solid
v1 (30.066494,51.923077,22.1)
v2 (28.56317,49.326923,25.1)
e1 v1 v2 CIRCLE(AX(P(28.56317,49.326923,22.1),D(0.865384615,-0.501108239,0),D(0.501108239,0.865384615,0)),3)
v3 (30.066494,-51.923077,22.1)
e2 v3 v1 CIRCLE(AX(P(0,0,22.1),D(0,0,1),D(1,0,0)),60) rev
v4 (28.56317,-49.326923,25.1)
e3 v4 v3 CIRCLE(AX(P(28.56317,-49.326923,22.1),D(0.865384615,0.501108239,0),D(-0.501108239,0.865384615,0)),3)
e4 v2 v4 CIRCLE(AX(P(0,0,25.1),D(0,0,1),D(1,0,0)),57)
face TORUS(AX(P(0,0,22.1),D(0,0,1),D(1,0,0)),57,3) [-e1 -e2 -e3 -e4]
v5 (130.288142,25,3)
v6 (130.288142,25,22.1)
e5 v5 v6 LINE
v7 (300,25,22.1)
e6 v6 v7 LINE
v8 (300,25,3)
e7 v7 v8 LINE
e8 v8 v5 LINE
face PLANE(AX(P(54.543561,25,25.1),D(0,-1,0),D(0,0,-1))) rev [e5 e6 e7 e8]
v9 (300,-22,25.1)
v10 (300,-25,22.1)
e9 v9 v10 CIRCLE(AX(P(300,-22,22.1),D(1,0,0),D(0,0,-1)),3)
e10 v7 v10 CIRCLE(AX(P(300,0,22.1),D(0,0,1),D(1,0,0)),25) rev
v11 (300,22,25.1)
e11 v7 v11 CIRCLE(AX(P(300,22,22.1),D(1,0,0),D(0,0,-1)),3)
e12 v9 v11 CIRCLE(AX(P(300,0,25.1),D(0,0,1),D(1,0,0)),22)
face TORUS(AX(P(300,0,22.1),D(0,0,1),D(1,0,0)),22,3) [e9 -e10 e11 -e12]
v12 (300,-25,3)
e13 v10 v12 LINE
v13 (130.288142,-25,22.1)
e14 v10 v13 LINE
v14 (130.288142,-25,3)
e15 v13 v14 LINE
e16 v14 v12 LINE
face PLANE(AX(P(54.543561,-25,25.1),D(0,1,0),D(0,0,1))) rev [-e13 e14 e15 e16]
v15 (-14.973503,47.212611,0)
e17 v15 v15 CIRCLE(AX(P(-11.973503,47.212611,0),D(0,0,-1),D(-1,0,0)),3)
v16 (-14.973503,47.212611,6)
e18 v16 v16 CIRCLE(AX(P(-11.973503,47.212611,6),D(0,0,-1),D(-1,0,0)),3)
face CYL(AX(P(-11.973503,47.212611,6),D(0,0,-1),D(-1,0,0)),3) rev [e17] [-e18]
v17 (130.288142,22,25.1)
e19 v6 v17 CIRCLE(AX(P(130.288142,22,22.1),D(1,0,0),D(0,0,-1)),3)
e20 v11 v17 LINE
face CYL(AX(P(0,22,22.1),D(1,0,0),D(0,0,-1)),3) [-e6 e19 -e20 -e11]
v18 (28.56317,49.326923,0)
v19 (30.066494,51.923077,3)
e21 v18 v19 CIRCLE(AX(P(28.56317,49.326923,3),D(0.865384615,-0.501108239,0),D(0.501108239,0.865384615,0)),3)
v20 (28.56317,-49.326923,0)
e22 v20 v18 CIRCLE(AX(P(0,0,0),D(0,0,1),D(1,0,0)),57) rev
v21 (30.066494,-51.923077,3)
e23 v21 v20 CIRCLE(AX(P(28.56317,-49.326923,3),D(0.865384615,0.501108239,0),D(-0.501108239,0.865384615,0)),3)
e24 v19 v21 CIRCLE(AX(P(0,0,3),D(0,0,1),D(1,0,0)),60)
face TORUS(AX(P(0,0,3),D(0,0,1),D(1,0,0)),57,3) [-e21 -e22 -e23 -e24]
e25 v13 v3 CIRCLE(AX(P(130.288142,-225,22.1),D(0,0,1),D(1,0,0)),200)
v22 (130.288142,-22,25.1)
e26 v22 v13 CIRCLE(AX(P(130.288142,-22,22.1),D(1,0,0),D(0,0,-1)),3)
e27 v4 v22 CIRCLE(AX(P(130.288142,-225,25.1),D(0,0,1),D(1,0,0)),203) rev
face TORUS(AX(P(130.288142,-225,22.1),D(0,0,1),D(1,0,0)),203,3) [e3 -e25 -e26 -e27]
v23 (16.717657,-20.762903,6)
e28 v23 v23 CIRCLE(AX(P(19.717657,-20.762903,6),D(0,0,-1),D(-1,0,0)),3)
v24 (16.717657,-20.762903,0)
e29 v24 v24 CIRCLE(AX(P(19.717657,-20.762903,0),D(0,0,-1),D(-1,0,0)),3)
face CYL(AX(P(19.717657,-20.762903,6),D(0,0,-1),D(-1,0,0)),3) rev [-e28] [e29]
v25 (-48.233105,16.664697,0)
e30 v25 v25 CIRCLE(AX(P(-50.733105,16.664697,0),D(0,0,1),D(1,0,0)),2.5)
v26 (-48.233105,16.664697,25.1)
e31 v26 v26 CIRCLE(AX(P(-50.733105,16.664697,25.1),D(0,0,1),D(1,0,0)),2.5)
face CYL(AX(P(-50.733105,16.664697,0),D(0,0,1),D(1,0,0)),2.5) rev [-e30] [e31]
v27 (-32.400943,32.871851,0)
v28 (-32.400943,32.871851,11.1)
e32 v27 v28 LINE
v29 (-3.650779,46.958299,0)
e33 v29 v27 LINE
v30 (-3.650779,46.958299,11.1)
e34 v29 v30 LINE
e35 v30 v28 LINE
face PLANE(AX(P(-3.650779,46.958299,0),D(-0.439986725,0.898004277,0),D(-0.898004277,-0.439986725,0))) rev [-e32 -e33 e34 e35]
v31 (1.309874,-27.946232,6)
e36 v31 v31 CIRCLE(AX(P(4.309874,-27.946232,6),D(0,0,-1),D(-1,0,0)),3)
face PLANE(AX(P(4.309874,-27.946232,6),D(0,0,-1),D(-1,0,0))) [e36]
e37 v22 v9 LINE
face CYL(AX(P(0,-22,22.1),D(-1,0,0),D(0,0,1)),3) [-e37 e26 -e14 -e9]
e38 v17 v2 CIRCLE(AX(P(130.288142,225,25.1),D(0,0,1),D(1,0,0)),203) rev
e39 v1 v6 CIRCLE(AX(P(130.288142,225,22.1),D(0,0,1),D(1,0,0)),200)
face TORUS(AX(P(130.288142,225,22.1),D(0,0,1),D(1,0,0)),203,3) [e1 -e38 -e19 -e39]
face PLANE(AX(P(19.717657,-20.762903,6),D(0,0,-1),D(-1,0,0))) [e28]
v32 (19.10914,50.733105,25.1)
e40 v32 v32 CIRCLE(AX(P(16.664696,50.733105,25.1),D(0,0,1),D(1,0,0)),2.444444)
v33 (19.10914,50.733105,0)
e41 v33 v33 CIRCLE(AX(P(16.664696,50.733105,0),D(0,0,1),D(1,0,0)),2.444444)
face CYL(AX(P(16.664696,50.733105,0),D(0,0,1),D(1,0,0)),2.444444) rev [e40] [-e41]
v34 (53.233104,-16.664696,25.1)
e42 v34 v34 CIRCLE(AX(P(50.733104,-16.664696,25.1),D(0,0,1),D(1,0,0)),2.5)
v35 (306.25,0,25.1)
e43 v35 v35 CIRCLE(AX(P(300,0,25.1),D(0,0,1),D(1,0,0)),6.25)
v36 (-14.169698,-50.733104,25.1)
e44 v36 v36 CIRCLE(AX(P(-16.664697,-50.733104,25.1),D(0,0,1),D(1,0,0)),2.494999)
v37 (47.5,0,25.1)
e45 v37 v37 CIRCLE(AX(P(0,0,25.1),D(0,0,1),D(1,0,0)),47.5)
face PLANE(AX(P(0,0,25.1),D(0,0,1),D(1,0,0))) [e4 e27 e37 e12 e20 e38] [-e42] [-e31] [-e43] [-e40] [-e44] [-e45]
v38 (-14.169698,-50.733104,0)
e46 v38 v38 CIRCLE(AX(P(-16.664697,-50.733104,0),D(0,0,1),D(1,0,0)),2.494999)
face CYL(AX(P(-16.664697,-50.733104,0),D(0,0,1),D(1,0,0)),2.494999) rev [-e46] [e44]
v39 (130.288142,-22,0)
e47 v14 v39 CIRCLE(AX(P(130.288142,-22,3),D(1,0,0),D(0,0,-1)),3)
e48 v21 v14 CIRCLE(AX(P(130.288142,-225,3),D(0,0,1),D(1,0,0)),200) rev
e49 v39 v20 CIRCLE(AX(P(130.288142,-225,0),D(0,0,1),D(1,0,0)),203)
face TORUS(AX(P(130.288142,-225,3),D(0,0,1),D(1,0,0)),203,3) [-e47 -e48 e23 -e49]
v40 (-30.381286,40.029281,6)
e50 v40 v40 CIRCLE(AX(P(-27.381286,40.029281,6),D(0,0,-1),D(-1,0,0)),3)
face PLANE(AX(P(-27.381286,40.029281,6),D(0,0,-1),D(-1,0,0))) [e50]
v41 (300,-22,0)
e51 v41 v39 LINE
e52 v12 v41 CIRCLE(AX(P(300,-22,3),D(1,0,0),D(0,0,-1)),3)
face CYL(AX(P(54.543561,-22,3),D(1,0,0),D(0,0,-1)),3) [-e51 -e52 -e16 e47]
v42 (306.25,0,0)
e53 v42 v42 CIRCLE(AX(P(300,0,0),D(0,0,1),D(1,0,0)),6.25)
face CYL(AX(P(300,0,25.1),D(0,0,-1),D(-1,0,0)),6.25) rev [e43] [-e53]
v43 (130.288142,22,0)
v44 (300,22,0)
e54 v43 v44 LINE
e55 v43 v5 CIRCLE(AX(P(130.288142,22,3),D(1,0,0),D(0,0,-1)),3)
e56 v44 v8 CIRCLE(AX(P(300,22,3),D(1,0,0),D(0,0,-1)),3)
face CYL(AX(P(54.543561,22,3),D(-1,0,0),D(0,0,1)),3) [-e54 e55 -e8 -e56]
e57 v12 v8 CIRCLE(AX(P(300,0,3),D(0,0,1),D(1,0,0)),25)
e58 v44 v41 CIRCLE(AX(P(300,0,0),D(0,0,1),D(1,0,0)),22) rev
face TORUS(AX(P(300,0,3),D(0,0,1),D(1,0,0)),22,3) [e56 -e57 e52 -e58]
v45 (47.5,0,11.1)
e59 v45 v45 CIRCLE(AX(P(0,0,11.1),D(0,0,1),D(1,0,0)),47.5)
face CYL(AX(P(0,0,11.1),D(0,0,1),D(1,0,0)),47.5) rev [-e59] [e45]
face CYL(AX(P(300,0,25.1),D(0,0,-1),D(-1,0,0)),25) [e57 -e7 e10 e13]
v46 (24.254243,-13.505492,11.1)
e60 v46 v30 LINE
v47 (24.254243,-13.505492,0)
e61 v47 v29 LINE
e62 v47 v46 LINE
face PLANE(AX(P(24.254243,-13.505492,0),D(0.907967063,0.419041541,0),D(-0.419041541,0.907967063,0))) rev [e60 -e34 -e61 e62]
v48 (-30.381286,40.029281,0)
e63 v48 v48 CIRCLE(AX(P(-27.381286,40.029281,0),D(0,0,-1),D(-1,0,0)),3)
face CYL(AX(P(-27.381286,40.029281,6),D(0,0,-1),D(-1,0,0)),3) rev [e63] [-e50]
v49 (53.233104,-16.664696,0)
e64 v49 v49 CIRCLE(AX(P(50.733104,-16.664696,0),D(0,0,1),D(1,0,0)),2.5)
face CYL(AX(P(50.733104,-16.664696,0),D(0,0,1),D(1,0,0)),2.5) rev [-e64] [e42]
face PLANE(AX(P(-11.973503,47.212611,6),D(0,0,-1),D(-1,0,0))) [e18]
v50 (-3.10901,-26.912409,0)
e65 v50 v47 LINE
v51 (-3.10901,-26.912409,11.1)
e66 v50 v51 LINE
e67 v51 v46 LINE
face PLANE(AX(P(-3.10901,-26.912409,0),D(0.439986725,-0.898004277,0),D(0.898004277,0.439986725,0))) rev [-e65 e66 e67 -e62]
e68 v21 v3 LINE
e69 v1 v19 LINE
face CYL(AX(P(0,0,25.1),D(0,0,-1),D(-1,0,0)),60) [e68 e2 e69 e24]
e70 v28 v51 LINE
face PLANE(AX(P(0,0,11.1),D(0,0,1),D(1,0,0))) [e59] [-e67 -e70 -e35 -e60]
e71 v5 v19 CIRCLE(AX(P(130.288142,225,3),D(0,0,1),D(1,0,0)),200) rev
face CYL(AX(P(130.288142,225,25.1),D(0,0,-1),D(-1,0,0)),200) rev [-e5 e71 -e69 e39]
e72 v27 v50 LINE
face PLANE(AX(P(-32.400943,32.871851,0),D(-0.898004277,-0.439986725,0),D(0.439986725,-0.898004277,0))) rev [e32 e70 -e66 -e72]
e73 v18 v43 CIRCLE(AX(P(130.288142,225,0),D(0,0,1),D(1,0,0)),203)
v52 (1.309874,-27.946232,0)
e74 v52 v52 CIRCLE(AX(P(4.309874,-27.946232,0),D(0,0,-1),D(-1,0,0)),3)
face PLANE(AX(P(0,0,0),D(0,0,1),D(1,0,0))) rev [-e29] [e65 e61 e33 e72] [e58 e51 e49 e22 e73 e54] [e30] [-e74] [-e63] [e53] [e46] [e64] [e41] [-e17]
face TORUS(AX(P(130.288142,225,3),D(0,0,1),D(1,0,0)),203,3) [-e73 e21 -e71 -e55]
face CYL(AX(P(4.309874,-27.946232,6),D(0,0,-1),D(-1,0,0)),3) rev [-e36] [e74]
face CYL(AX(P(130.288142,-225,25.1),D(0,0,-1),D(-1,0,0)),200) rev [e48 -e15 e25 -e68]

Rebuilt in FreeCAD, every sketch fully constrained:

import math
import FreeCAD as App
import Part
import Sketcher
from FreeCAD import Vector


def edges_at(feature, points):
    """Names of the edges that pass closest to the given points."""
    edges = feature.Shape.Edges
    near = lambda p: min(range(len(edges)), key=lambda i: edges[i].distToShape(Part.Vertex(*p))[0])
    return sorted({f"Edge{near(p) + 1}" for p in points})

doc = App.newDocument("Part")
body = doc.addObject("PartDesign::Body", "Body")

# Sketch on XY plane
sketch1 = body.newObject("Sketcher::SketchObject", "Sketch")
sketch1.AttachmentSupport = (doc.getObject("XY_Plane"), [""])
sketch1.MapMode = "FlatFace"
sketch1.addGeometry([
    Part.LineSegment(Vector(300, 25, 0), Vector(55, 25, 0)),  # 0
    Part.ArcOfCircle(Part.Circle(Vector(0, 0, 0), Vector(0, 0, 1), 60), math.radians(25), math.radians(335)),  # 1
    Part.LineSegment(Vector(55, -25, 0), Vector(300, -25, 0)),  # 2
    Part.ArcOfCircle(Part.Circle(Vector(300, 0, 0), Vector(0, 0, 1), 25), math.radians(-90), math.radians(90)),  # 3
    Part.Circle(Vector(300, 0, 0), Vector(0, 0, 1), 6),  # 4
], False)
sketch1.addConstraint([
    Sketcher.Constraint("Coincident", 0, 2, 1, 1),
    Sketcher.Constraint("Coincident", 1, 2, 2, 1),
    Sketcher.Constraint("Tangent", 2, 2, 3, 1),
    Sketcher.Constraint("Tangent", 3, 2, 0, 1),
    Sketcher.Constraint("Horizontal", 0),
    Sketcher.Constraint("Horizontal", 2),
    Sketcher.Constraint("Coincident", 1, 3, -1, 1),
    Sketcher.Constraint("Coincident", 4, 3, 3, 3),
    Sketcher.Constraint("PointOnObject", 3, 3, -1),
    Sketcher.Constraint("Radius", 1, 60.0),
    Sketcher.Constraint("Radius", 3, 25.0),
    Sketcher.Constraint("Diameter", 4, 12.5),
    Sketcher.Constraint("DistanceX", -1, 1, 3, 3, 300.0),
])
pad1 = body.newObject("PartDesign::Pad", "Pad")
pad1.Profile = sketch1
pad1.Length = 25.1

# Sketch on XY plane
sketch2 = body.newObject("Sketcher::SketchObject", "Sketch001")
sketch2.AttachmentSupport = (doc.getObject("XY_Plane"), [""])
sketch2.MapMode = "FlatFace"
sketch2.AttachmentOffset = App.Placement(Vector(0, 0, 25.1), App.Rotation())
sketch2.addGeometry(Part.Circle(Vector(0, 0, 0), Vector(0, 0, 1), 48), False)
sketch2.addConstraint([
    Sketcher.Constraint("Coincident", 0, 3, -1, 1),
    Sketcher.Constraint("Diameter", 0, 95.0),
])
pocket1 = body.newObject("PartDesign::Pocket", "Pocket")
pocket1.Profile = sketch2
pocket1.Length = 14

# Sketch on XY plane
sketch3 = body.newObject("Sketcher::SketchObject", "Sketch002")
sketch3.AttachmentSupport = (doc.getObject("XY_Plane"), [""])
sketch3.MapMode = "FlatFace"
sketch3.AttachmentOffset = App.Placement(Vector(0, 0, 25.1), App.Rotation())
sketch3.addGeometry([
    Part.Circle(Vector(-16.7, -50.7, 0), Vector(0, 0, 1), 2.5),
    Part.Circle(Vector(-50.7, 16.7, 0), Vector(0, 0, 1), 2.5),
    Part.Circle(Vector(16.7, 50.7, 0), Vector(0, 0, 1), 2.4),
    Part.Circle(Vector(50.7, -16.7, 0), Vector(0, 0, 1), 2.5),
], False)
sketch3.addConstraint([
    Sketcher.Constraint("Equal", 1, 3),
    Sketcher.Constraint("Symmetric", 0, 3, 2, 3, -1, 1),
    Sketcher.Constraint("Symmetric", 1, 3, 3, 3, -1, 1),
    Sketcher.Constraint("Diameter", 1, 5.0),
    Sketcher.Constraint("Diameter", 0, 4.989997),
    Sketcher.Constraint("Diameter", 2, 4.888888),
    Sketcher.Constraint("DistanceY", 0, 3, 1, 3, 67.397801),
    Sketcher.Constraint("DistanceX", 1, 3, 2, 3, 67.397801),
    Sketcher.Constraint("DistanceY", 0, 3, 2, 3, 101.466209),
    Sketcher.Constraint("DistanceX", 1, 3, 3, 3, 101.466209),
])
pocket2 = body.newObject("PartDesign::Pocket", "Pocket001")
pocket2.Profile = sketch3
pocket2.Type = "ThroughAll"
pocket2.Midplane = True

# Sketch on XY plane
sketch4 = body.newObject("Sketcher::SketchObject", "Sketch003")
sketch4.AttachmentSupport = (doc.getObject("XY_Plane"), [""])
sketch4.MapMode = "FlatFace"
sketch4.addGeometry([
    Part.Circle(Vector(-12, 47.2, 0), Vector(0, 0, 1), 3),
    Part.Circle(Vector(-27.4, 40, 0), Vector(0, 0, 1), 3),
    Part.Circle(Vector(19.7, -20.8, 0), Vector(0, 0, 1), 3),
    Part.Circle(Vector(4.3, -27.9, 0), Vector(0, 0, 1), 3),
], False)
sketch4.addConstraint([
    Sketcher.Constraint("Equal", 0, 1),
    Sketcher.Constraint("Equal", 1, 2),
    Sketcher.Constraint("Equal", 2, 3),
    Sketcher.Constraint("Diameter", 0, 6.0),
    Sketcher.Constraint("DistanceY", -1, 1, 0, 3, 47.212611),
    Sketcher.Constraint("DistanceY", -1, 1, 1, 3, 40.029281),
    Sketcher.Constraint("DistanceX", 0, 3, 2, 3, 31.69116),
    Sketcher.Constraint("DistanceY", 3, 3, 2, 3, 7.18333),
    Sketcher.Constraint("DistanceX", 1, 3, 3, 3, 31.69116),
    Sketcher.Constraint("DistanceX", 0, 3, -1, 1, 11.973503),
    Sketcher.Constraint("DistanceX", 1, 3, -1, 1, 27.381286),
    Sketcher.Constraint("DistanceY", 2, 3, -1, 1, 20.762903),
])
pocket3 = body.newObject("PartDesign::Pocket", "Pocket002")
pocket3.Profile = sketch4
pocket3.Length = 6
pocket3.Reversed = True

# Sketch on XY plane
sketch5 = body.newObject("Sketcher::SketchObject", "Sketch004")
sketch5.AttachmentSupport = (doc.getObject("XY_Plane"), [""])
sketch5.MapMode = "FlatFace"
sketch5.AttachmentOffset = App.Placement(Vector(0, 0, 11.1), App.Rotation())
sketch5.addGeometry([
    Part.LineSegment(Vector(-32, 33, 0), Vector(-3, -27, 0)),
    Part.LineSegment(Vector(-3, -27, 0), Vector(24, -14, 0)),
    Part.LineSegment(Vector(24, -14, 0), Vector(-4, 47, 0)),
    Part.LineSegment(Vector(-4, 47, 0), Vector(-32, 33, 0)),
], False)
sketch5.addConstraint([
    Sketcher.Constraint("Coincident", 0, 2, 1, 1),
    Sketcher.Constraint("Coincident", 1, 2, 2, 1),
    Sketcher.Constraint("Coincident", 2, 2, 3, 1),
    Sketcher.Constraint("Coincident", 3, 2, 0, 1),
    Sketcher.Constraint("Perpendicular", 0, 1),
    Sketcher.Constraint("Parallel", 1, 3),
    Sketcher.Constraint("DistanceY", -1, 1, 2, 2, 46.958299),
    Sketcher.Constraint("Distance", 3, 32.01562),
    Sketcher.Constraint("DistanceX", 0, 2, -1, 1, 3.10901),
    Sketcher.Constraint("DistanceY", 0, 2, -1, 1, 26.912409),
    Sketcher.Constraint("DistanceX", 2, 2, -1, 1, 3.650779),
    Sketcher.Constraint("DistanceX", 2, 2, 1, 2, 27.905021),
])
pocket4 = body.newObject("PartDesign::Pocket", "Pocket003")
pocket4.Profile = sketch5
pocket4.Type = "ThroughAll"
pocket4.Midplane = True
doc.recompute()

fillet = body.newObject("PartDesign::Fillet", "Fillet")
fillet.Base = (pocket4, edges_at(pocket4, [(54.544, 25, 12.55), (54.544, -25, 12.55)]))
fillet.Radius = 200
doc.recompute()

fillet2 = body.newObject("PartDesign::Fillet", "Fillet001")
fillet2.Base = (fillet, edges_at(fillet, [
    (325, 0, 25.1),
    (215.144, 25, 25.1),
    (215.144, 25, 0),
    (325, 0, 0),
    (215.144, -25, 0),
    (215.144, -25, 25.1),
    (-60, 0, 0),
    (-60, 0, 25.1),
    (78.401, -31.848, 0),
    (78.401, -31.848, 25.1),
    (78.401, 31.848, 0),
    (78.401, 31.848, 25.1),
]))
fillet2.Radius = 3

doc.recompute()
